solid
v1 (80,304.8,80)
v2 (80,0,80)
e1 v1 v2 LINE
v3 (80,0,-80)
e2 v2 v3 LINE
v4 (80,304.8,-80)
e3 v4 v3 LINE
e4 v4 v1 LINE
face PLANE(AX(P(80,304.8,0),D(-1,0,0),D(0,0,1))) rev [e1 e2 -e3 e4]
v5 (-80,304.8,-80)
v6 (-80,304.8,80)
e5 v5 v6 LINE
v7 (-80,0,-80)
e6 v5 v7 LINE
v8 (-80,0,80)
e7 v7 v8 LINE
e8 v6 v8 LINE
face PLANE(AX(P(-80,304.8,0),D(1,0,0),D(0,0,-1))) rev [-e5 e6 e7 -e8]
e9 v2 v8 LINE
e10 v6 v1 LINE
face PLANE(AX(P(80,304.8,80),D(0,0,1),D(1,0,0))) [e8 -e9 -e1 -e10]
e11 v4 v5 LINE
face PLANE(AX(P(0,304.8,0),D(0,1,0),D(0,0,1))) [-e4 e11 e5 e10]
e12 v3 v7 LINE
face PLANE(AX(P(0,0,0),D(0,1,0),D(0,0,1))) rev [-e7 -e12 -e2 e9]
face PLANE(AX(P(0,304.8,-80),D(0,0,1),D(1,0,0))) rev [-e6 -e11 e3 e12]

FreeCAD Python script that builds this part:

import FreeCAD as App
import Part
import Sketcher


def add_polygon(sketch, points):
    """Adds a closed chain of lines whose ends are joined by coincident constraints."""
    first, n = sketch.GeometryCount, len(points)
    for a, b in zip(points, points[1:] + points[:1]):
        sketch.addGeometry(Part.LineSegment(App.Vector(*a, 0), App.Vector(*b, 0)), False)
    for i in range(n):
        sketch.addConstraint(Sketcher.Constraint("Coincident", first + i, 2, first + (i + 1) % n, 1))

doc = App.newDocument("Part")
params = doc.addObject("Spreadsheet::Sheet", "Params")
for row, (alias, value) in enumerate([
    ("sketch1_width", "160 mm"),
    ("pad1_length", "304.8 mm"),
], start=1):
    params.set(f"A{row}", alias)
    params.set(f"B{row}", "=" + value)
    params.setAlias(f"B{row}", alias)

body = doc.addObject("PartDesign::Body", "Body")

# Sketch on XZ plane
sketch1 = doc.addObject("Sketcher::SketchObject", "Sketch")
body.addObject(sketch1)
sketch1.AttachmentSupport = (doc.XZ_Plane, [""])
sketch1.MapMode = "FlatFace"
add_polygon(sketch1, [(-80, -80), (-80, 80), (80, 80), (80, -80)])  # lines 0-3
sketch1.addConstraint([
    Sketcher.Constraint("Vertical", 0),
    Sketcher.Constraint("Horizontal", 1),
    Sketcher.Constraint("Vertical", 2),
    Sketcher.Constraint("Horizontal", 3),
    Sketcher.Constraint("Symmetric", 0, 2, 2, 2, -1, 1),
    Sketcher.Constraint("Equal", 3, 0),
    Sketcher.Constraint("DistanceX", 1, 1, 1, 2, 160.0),
])
sketch1.setExpression("Constraints[10]", "Params.sketch1_width")
pad1 = doc.addObject("PartDesign::Pad", "Pad")
body.addObject(pad1)
pad1.Profile = sketch1
pad1.setExpression("Length", "Params.pad1_length")
pad1.Reversed = True

doc.recompute()
